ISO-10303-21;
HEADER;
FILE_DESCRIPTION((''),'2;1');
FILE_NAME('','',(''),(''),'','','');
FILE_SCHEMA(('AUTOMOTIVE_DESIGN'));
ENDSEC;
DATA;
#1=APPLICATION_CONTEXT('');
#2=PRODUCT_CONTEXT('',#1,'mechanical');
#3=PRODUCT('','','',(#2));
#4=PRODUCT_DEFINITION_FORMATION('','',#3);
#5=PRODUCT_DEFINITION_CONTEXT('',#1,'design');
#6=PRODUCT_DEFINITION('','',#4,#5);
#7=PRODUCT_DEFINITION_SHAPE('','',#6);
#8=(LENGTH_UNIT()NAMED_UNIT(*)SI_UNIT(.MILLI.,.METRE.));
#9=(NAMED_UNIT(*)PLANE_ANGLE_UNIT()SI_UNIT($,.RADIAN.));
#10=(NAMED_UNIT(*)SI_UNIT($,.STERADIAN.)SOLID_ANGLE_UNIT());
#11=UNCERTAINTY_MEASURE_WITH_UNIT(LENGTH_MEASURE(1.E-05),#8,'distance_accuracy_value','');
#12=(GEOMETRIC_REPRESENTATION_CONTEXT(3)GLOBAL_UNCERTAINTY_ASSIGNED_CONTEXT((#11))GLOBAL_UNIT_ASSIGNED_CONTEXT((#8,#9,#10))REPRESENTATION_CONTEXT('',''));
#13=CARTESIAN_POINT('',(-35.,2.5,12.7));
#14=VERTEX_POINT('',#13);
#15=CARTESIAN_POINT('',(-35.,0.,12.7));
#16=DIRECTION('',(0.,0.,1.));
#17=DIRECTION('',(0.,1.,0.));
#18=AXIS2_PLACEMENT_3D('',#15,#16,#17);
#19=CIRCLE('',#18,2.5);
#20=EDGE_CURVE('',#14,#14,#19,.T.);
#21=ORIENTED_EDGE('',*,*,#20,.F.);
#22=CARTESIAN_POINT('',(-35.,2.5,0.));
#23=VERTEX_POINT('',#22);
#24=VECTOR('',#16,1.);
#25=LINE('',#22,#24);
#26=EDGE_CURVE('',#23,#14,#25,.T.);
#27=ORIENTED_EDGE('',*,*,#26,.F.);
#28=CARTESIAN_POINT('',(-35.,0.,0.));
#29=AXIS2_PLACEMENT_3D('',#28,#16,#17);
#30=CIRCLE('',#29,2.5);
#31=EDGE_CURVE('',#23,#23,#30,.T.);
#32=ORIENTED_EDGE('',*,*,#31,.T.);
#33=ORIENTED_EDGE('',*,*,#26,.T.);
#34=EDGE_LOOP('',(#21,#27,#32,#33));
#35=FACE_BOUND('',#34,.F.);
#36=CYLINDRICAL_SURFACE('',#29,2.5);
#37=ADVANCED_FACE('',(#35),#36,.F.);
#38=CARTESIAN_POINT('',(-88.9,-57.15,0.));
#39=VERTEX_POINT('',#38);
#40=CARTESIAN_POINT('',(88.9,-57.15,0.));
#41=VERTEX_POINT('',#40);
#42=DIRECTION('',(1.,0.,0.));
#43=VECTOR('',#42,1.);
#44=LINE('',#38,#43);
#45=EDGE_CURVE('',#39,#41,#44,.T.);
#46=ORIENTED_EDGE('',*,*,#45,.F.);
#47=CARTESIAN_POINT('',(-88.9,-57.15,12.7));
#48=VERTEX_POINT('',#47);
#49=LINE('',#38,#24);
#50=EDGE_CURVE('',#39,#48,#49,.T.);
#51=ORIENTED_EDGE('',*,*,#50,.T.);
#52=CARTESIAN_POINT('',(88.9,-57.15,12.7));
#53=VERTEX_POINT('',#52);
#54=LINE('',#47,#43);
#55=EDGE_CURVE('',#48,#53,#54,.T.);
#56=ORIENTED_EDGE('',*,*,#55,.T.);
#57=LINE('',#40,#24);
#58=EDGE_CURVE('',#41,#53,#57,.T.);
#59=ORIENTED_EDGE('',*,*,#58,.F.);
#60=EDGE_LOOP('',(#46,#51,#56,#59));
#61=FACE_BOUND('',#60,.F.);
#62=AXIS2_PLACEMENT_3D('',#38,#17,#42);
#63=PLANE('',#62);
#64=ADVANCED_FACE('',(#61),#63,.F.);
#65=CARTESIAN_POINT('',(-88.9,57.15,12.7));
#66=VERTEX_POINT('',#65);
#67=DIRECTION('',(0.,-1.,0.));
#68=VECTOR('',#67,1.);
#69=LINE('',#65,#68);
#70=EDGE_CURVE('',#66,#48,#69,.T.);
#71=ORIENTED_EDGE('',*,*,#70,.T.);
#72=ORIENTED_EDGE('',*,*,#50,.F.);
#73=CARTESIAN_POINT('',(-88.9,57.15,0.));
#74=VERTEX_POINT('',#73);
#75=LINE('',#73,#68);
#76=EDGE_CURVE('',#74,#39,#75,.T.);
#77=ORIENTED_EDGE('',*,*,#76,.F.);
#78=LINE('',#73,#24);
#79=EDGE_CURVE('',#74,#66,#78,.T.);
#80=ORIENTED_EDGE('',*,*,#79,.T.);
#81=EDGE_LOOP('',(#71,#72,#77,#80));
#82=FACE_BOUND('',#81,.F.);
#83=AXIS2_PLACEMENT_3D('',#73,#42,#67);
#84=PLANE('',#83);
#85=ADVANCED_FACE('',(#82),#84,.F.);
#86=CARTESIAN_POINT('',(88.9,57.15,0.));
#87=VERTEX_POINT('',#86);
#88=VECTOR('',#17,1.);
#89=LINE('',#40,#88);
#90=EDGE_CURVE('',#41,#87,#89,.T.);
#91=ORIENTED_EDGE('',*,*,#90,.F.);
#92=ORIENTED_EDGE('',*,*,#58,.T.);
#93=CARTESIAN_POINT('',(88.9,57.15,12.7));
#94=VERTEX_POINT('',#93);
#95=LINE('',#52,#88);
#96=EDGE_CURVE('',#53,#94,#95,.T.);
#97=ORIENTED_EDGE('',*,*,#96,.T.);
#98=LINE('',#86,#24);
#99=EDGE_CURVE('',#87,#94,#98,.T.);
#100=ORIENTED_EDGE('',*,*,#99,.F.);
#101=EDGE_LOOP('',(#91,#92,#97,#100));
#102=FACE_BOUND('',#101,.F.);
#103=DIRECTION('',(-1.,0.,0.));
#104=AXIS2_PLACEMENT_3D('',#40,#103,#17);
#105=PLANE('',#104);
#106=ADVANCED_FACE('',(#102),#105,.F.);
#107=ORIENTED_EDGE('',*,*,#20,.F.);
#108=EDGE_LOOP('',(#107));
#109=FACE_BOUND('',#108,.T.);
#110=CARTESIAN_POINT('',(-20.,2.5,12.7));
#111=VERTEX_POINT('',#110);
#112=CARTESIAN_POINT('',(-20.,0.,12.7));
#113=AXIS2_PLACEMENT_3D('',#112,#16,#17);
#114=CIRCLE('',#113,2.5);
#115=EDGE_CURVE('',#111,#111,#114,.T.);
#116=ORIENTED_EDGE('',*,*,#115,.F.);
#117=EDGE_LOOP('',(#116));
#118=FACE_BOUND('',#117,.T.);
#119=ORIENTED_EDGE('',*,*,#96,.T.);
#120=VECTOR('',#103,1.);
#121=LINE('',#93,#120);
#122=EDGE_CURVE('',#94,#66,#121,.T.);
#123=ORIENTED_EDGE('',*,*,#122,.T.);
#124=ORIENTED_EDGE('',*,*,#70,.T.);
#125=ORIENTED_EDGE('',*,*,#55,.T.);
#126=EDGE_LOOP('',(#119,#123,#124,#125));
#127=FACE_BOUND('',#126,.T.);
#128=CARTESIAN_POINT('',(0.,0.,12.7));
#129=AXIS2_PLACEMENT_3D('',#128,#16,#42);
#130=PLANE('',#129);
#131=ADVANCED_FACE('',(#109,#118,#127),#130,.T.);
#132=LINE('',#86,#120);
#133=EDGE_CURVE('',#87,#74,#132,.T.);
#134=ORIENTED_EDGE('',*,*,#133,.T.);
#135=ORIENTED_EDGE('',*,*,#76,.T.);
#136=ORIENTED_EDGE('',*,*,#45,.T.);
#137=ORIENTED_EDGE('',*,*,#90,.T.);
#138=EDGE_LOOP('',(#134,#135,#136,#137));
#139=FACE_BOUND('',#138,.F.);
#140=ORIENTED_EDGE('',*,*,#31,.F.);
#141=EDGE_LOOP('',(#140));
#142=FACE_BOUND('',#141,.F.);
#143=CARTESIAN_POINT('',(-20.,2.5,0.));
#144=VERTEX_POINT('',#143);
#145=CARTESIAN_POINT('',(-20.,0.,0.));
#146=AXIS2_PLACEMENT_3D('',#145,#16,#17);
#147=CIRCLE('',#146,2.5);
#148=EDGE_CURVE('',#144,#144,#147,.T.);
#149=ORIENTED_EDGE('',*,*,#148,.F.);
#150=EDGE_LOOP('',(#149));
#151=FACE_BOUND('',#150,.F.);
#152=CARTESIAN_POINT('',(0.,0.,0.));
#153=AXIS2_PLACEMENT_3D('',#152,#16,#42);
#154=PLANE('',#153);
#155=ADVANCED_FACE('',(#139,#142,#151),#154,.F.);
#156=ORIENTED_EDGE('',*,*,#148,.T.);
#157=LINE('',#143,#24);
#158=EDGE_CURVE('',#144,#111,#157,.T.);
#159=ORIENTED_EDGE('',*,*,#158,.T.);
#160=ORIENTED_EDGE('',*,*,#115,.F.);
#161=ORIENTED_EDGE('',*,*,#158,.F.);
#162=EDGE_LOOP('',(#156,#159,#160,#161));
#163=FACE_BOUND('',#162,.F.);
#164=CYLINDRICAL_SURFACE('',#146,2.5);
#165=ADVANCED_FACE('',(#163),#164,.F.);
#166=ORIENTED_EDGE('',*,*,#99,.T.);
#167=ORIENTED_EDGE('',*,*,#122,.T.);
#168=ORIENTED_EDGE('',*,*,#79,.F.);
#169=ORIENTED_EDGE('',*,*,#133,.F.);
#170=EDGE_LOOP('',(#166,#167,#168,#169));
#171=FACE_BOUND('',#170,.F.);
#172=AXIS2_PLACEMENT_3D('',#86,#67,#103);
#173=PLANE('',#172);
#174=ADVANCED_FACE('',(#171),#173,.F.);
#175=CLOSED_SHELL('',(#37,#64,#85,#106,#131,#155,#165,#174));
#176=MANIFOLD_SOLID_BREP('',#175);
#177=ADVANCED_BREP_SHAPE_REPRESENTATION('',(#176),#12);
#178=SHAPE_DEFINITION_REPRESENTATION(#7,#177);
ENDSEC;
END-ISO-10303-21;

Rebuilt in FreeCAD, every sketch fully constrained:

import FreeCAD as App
import Part
import Sketcher

V = App.Vector
Q = App.Units.Quantity

doc = App.newDocument("Part")
params = doc.addObject("Spreadsheet::Sheet", "Params")
for row, (alias, value) in enumerate([
    ("sketch1_width", "7 in"),
    ("sketch1_height", "4.5 in"),
    ("pad1_length", "0.5 in"),
    ("hole_diameter", "5 mm"),
], start=1):
    params.set(f"A{row}", alias)
    params.set(f"B{row}", "=" + value)
    params.setAlias(f"B{row}", alias)

body = doc.addObject("PartDesign::Body", "Body")

# Sketch on XY plane
sketch1 = body.newObject("Sketcher::SketchObject", "Sketch")
sketch1.AttachmentSupport = (doc.getObject("XY_Plane"), [""])
sketch1.MapMode = "FlatFace"
sketch1.addGeometry([
    Part.LineSegment(V(-88.9, 57.15, 0), V(-88.9, -57.15, 0)),
    Part.LineSegment(V(-88.9, -57.15, 0), V(88.9, -57.15, 0)),
    Part.LineSegment(V(88.9, -57.15, 0), V(88.9, 57.15, 0)),
    Part.LineSegment(V(88.9, 57.15, 0), V(-88.9, 57.15, 0)),
], False)
sketch1.addConstraint([
    Sketcher.Constraint("Coincident", 0, 2, 1, 1),
    Sketcher.Constraint("Coincident", 1, 2, 2, 1),
    Sketcher.Constraint("Coincident", 2, 2, 3, 1),
    Sketcher.Constraint("Coincident", 3, 2, 0, 1),
    Sketcher.Constraint("Vertical", 0),
    Sketcher.Constraint("Horizontal", 1),
    Sketcher.Constraint("Vertical", 2),
    Sketcher.Constraint("Horizontal", 3),
    Sketcher.Constraint("Symmetric", 0, 2, 2, 2, -1, 1),
    Sketcher.Constraint("DistanceX", 1, 1, 1, 2, Q("7 in")),
    Sketcher.Constraint("DistanceY", 0, 2, 0, 1, Q("4.5 in")),
])
sketch1.setExpression("Constraints[9]", "Params.sketch1_width")
sketch1.setExpression("Constraints[10]", "Params.sketch1_height")
pad1 = body.newObject("PartDesign::Pad", "Pad")
pad1.Profile = sketch1
pad1.setExpression("Length", "Params.pad1_length")

# Sketch on XY plane
sketch2 = body.newObject("Sketcher::SketchObject", "Sketch001")
sketch2.AttachmentSupport = (doc.getObject("XY_Plane"), [""])
sketch2.MapMode = "FlatFace"
sketch2.addGeometry([
    Part.Circle(V(-35, 0, 0), V(0, 0, 1), 2.5),
    Part.Circle(V(-20, 0, 0), V(0, 0, 1), 2.5),
], False)
sketch2.addConstraint([
    Sketcher.Constraint("Equal", 0, 1),
    Sketcher.Constraint("PointOnObject", 0, 3, -1),
    Sketcher.Constraint("PointOnObject", 1, 3, -1),
    Sketcher.Constraint("Diameter", 0, 5.0),
    Sketcher.Constraint("DistanceX", 1, 3, -1, 1, Q("0.7874 in")),
    Sketcher.Constraint("DistanceX", 0, 3, -1, 1, 35.0),
])
doc.recompute()
hole = body.newObject("PartDesign::Hole", "Hole")
hole.Profile = sketch2
hole.ThreadType = "None"
hole.setExpression("Diameter", "Params.hole_diameter")
hole.DepthType = "ThroughAll"
hole.Reversed = True

doc.recompute()
